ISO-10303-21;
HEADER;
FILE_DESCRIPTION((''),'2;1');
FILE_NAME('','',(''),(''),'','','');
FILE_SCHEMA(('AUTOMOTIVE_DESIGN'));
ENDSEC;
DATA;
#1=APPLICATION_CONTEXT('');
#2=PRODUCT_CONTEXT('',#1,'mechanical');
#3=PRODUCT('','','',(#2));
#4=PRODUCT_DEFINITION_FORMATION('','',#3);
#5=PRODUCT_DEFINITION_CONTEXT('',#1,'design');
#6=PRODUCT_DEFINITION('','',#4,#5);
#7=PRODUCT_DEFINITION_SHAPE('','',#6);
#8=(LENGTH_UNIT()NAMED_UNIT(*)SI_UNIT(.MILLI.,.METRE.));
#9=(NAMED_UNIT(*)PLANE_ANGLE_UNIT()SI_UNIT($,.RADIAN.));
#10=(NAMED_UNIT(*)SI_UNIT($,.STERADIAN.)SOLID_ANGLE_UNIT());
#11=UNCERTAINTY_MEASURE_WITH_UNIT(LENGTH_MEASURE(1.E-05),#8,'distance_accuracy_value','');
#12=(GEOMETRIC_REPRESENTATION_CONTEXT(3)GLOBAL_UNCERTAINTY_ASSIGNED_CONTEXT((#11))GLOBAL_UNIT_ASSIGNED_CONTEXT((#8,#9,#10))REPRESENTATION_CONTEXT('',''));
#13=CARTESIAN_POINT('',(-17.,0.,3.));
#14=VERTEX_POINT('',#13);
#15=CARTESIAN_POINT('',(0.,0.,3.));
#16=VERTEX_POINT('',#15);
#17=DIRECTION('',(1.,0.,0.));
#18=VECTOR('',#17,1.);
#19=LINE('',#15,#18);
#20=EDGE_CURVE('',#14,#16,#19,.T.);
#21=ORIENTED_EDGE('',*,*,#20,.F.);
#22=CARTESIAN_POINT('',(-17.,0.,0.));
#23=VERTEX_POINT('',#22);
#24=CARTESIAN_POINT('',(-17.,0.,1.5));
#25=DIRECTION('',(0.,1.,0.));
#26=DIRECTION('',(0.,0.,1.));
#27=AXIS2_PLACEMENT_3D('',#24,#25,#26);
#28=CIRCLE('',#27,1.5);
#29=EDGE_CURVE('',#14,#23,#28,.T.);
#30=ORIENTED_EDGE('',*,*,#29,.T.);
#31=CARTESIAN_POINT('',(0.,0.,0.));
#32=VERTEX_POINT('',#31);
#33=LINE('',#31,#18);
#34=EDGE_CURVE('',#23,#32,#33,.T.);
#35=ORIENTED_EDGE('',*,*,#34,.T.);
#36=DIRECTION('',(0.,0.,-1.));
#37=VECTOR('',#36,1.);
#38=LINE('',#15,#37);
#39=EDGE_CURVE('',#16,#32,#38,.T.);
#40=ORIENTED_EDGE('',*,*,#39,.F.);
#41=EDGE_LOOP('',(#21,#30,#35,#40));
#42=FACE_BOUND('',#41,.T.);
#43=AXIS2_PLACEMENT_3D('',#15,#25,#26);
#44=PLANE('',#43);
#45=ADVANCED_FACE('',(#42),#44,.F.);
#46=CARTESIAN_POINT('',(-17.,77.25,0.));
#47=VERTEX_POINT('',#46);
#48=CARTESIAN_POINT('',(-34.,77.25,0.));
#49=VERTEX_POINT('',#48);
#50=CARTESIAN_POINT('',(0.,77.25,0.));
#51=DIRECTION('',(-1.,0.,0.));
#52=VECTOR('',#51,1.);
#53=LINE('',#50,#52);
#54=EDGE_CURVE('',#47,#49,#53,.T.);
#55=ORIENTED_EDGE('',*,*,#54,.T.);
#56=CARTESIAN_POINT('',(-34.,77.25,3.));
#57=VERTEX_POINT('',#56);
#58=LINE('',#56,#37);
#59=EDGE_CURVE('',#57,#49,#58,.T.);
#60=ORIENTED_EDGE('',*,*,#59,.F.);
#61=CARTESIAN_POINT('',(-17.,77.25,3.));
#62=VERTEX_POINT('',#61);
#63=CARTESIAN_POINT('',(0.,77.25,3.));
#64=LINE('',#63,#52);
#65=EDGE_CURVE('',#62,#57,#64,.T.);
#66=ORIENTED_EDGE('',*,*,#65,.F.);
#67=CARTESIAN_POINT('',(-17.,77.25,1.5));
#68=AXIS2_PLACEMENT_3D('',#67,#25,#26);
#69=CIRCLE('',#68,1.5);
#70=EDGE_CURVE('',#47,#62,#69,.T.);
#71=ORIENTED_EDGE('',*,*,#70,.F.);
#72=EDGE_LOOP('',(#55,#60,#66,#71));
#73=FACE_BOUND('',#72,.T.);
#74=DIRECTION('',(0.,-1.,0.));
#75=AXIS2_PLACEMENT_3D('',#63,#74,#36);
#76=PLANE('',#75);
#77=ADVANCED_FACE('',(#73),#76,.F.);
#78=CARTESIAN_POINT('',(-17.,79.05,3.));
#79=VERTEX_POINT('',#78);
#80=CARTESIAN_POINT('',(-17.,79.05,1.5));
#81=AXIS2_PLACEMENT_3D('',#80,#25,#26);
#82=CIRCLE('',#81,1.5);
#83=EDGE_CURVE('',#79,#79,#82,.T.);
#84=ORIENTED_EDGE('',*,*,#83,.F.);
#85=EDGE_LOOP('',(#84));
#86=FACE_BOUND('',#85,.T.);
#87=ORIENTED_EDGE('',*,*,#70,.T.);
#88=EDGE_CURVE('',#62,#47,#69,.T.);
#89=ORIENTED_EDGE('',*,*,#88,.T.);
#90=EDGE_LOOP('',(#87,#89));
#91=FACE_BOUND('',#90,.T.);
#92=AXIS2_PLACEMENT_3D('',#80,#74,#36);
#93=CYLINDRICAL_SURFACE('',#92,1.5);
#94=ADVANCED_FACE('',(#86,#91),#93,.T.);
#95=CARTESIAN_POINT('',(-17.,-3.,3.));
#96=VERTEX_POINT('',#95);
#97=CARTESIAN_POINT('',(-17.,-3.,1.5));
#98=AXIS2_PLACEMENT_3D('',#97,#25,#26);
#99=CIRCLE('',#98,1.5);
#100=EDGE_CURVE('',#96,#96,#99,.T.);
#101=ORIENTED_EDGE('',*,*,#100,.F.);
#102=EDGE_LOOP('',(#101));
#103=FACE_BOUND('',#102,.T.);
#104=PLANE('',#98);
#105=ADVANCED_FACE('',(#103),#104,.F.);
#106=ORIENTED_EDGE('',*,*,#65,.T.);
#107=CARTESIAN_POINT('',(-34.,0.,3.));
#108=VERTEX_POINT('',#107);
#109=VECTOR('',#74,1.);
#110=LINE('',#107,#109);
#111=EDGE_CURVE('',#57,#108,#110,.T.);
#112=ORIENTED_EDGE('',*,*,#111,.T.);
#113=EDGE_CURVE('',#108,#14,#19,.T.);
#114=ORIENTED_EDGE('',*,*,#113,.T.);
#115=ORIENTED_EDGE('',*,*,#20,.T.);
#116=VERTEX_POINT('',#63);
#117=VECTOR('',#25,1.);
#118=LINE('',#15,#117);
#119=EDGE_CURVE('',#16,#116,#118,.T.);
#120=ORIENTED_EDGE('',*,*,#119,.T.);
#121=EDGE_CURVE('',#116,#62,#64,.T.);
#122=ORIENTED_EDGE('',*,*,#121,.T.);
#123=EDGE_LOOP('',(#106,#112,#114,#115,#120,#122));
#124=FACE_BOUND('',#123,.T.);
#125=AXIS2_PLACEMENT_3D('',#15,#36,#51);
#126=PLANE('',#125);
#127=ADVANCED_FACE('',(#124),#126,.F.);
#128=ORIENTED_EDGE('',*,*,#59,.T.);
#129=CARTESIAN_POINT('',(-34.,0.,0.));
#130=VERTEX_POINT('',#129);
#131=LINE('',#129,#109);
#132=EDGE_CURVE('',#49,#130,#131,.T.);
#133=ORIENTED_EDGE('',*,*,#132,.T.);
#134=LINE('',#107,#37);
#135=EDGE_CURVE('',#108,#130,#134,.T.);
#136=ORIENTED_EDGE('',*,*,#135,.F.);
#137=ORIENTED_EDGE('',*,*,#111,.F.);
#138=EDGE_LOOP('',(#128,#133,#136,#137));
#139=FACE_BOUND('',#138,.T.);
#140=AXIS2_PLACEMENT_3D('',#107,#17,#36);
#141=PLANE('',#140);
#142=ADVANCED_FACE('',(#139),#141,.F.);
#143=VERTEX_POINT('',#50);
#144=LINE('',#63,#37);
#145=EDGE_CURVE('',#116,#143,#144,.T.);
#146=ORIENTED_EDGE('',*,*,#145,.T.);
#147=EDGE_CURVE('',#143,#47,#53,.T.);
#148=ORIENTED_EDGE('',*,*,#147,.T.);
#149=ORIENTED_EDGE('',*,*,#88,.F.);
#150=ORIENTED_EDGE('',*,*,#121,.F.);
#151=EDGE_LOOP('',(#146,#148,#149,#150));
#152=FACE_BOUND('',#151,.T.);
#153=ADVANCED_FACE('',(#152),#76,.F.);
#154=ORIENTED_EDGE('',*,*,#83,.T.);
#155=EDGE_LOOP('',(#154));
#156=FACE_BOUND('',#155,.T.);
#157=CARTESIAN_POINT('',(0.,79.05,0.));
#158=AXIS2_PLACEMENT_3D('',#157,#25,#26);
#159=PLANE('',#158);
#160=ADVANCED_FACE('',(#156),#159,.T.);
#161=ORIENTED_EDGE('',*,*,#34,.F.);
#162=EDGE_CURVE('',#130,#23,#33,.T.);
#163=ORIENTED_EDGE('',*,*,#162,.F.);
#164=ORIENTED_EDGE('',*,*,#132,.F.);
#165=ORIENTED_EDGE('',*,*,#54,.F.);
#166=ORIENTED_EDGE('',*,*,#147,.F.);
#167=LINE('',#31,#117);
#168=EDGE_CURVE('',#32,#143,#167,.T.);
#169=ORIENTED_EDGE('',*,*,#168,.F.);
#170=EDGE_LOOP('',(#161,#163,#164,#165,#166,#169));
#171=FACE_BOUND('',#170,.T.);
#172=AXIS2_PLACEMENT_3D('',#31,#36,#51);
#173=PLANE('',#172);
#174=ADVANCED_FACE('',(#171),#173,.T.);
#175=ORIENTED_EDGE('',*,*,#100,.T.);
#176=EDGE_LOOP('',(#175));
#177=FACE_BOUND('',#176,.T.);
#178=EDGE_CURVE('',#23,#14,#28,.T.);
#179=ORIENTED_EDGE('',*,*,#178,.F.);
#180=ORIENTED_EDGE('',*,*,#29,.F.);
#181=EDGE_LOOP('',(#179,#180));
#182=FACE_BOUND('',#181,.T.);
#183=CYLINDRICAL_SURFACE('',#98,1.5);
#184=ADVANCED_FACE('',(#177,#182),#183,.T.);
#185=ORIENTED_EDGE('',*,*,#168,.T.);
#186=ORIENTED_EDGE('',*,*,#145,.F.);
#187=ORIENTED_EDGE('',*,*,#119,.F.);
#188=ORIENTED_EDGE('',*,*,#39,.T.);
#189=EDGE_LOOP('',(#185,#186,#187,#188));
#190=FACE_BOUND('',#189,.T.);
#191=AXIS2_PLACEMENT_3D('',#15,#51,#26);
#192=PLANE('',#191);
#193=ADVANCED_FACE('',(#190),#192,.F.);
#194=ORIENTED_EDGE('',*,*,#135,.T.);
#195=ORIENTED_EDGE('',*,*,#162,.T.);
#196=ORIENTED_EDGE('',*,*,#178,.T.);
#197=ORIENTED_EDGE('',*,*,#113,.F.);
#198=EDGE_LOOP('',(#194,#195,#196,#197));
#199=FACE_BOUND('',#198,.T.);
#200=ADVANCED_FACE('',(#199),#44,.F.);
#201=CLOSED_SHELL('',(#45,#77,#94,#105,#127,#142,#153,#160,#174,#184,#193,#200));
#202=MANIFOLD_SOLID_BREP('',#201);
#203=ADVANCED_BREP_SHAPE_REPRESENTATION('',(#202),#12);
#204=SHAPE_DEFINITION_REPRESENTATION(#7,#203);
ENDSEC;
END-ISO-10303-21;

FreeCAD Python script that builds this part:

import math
import FreeCAD as App
import Part
import Sketcher

V = App.Vector

doc = App.newDocument("Part")
body = doc.addObject("PartDesign::Body", "Body")

sketch1 = body.newObject("Sketcher::SketchObject", "Sketch")
sketch1.AttachmentSupport = (doc.getObject("XY_Plane"), [""])
sketch1.MapMode = "FlatFace"
sketch1.addGeometry([
    Part.LineSegment(V(-34, 0, 0), V(0, 0, 0)),
    Part.LineSegment(V(0, 0, 0), V(0, 77, 0)),
    Part.LineSegment(V(0, 77, 0), V(-34, 77, 0)),
    Part.LineSegment(V(-34, 77, 0), V(-34, 0, 0)),
], False)
sketch1.addConstraint([
    Sketcher.Constraint("Coincident", 0, 2, 1, 1),
    Sketcher.Constraint("Coincident", 1, 2, 2, 1),
    Sketcher.Constraint("Coincident", 2, 2, 3, 1),
    Sketcher.Constraint("Coincident", 3, 2, 0, 1),
    Sketcher.Constraint("Horizontal", 0),
    Sketcher.Constraint("Vertical", 1),
    Sketcher.Constraint("Horizontal", 2),
    Sketcher.Constraint("Vertical", 3),
    Sketcher.Constraint("Coincident", 0, 2, -1, 1),
    Sketcher.Constraint("DistanceX", 0, 1, 0, 2, 34.0),
    Sketcher.Constraint("DistanceY", 1, 1, 1, 2, 77.25),
])
pad1 = body.newObject("PartDesign::Pad", "Pad")
pad1.Profile = sketch1
pad1.Length = 3

sketch2 = body.newObject("Sketcher::SketchObject", "Sketch001")
sketch2.AttachmentSupport = (doc.getObject("XZ_Plane"), [""])
sketch2.MapMode = "FlatFace"
sketch2.AttachmentOffset = App.Placement(V(0, 0, -77.25), App.Rotation())
sketch2.addGeometry([
    Part.ArcOfCircle(Part.Circle(V(-17, 1.5, 0), V(0, 0, 1), 1.5), math.radians(90), math.radians(180)),
    Part.ArcOfCircle(Part.Circle(V(-17, 1.5, 0), V(0, 0, 1), 1.5), math.radians(-90), math.radians(90)),
    Part.ArcOfCircle(Part.Circle(V(-17, 1.5, 0), V(0, 0, 1), 1.5), math.radians(180), math.radians(270)),
], False)
sketch2.addConstraint([
    Sketcher.Constraint("Tangent", 0, 1, 1, 2),
    Sketcher.Constraint("Tangent", 1, 1, 2, 2),
    Sketcher.Constraint("Tangent", 2, 1, 0, 2),
    Sketcher.Constraint("PointOnObject", 1, 1, -1),
    Sketcher.Constraint("Horizontal", 1, 3, 2, 1),
    Sketcher.Constraint("Vertical", 2, 3, 0, 1),
    Sketcher.Constraint("Vertical", 0, 1, 1, 1),
    Sketcher.Constraint("Radius", 0, 1.5),
    Sketcher.Constraint("DistanceX", 0, 3, -1, 1, 17.0),
])
pad2 = body.newObject("PartDesign::Pad", "Pad001")
pad2.Profile = sketch2
pad2.Length = 1.8
pad2.Reversed = True

sketch3 = body.newObject("Sketcher::SketchObject", "Sketch002")
sketch3.AttachmentSupport = (doc.getObject("XZ_Plane"), [""])
sketch3.MapMode = "FlatFace"
sketch3.AttachmentOffset = App.Placement(V(0, 0, 3), App.Rotation())
sketch3.addGeometry([
    Part.ArcOfCircle(Part.Circle(V(-17, 1.5, 0), V(0, 0, 1), 1.5), math.radians(90), math.radians(180)),
    Part.ArcOfCircle(Part.Circle(V(-17, 1.5, 0), V(0, 0, 1), 1.5), math.radians(-90), math.radians(90)),
    Part.ArcOfCircle(Part.Circle(V(-17, 1.5, 0), V(0, 0, 1), 1.5), math.radians(180), math.radians(270)),
], False)
sketch3.addConstraint([
    Sketcher.Constraint("Tangent", 0, 1, 1, 2),
    Sketcher.Constraint("Tangent", 1, 1, 2, 2),
    Sketcher.Constraint("Tangent", 2, 1, 0, 2),
    Sketcher.Constraint("PointOnObject", 1, 1, -1),
    Sketcher.Constraint("Horizontal", 1, 3, 2, 1),
    Sketcher.Constraint("Vertical", 2, 3, 0, 1),
    Sketcher.Constraint("Vertical", 0, 1, 1, 1),
    Sketcher.Constraint("Radius", 0, 1.5),
    Sketcher.Constraint("DistanceX", 0, 3, -1, 1, 17.0),
])
pad3 = body.newObject("PartDesign::Pad", "Pad002")
pad3.Profile = sketch3
pad3.Length = 3
pad3.Reversed = True

doc.recompute()
